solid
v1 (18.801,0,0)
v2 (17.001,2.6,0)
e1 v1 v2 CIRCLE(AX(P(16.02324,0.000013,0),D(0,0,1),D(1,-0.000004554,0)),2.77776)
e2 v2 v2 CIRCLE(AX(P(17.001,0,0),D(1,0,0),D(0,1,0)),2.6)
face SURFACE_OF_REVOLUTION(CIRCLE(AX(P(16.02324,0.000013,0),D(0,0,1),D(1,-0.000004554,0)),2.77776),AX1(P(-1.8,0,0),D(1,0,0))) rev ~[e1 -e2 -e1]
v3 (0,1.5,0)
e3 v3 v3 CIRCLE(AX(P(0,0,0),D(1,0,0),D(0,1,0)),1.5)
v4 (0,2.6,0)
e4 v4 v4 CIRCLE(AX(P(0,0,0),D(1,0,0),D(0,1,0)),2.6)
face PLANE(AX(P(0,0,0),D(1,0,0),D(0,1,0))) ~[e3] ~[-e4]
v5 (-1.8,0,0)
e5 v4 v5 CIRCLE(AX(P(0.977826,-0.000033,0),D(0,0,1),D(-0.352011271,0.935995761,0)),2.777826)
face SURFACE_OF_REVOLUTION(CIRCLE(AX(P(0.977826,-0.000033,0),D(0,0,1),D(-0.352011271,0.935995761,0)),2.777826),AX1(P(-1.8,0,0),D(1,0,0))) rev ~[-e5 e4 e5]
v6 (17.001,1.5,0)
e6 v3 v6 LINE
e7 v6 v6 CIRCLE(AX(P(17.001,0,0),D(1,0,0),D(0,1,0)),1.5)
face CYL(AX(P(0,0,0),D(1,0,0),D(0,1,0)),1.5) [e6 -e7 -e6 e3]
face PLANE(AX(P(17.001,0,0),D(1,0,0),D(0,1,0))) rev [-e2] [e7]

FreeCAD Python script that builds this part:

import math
import FreeCAD as App
import Part
import Sketcher
Q = App.Units.Quantity

doc = App.newDocument("Part")
params = doc.addObject("Spreadsheet::Sheet", "Params")
for row, (alias, value) in enumerate([
    ("sketch1_height", "1.1 mm"),
    ("revolution_angle", "360 deg"),
], start=1):
    params.set(f"A{row}", alias)
    params.set(f"B{row}", "=" + value)
    params.setAlias(f"B{row}", alias)

body = doc.addObject("PartDesign::Body", "Body")

# Sketch on XY plane
sketch1 = doc.addObject("Sketcher::SketchObject", "Sketch")
body.addObject(sketch1)
sketch1.AttachmentSupport = (doc.XY_Plane, [""])
sketch1.MapMode = "FlatFace"
sketch1.addGeometry([
    Part.LineSegment(App.Vector(17, 1.5, 0), App.Vector(0, 1.5, 0)),  # 0
    Part.LineSegment(App.Vector(0, 1.5, 0), App.Vector(0, 2.6, 0)),  # 1
    Part.ArcOfCircle(Part.Circle(App.Vector(1, 0, 0), App.Vector(0, 0, 1), 2.8), math.radians(111), math.radians(180)),  # 2
    Part.LineSegment(App.Vector(-1.8, 0, 0), App.Vector(18.8, 0, 0)),  # 3
    Part.ArcOfCircle(Part.Circle(App.Vector(16, 0, 0), App.Vector(0, 0, 1), 2.8), math.radians(0), math.radians(69)),  # 4
    Part.LineSegment(App.Vector(17, 2.6, 0), App.Vector(17, 1.5, 0)),  # 5
], False)
sketch1.addConstraint([
    Sketcher.Constraint("Coincident", 0, 2, 1, 1),
    Sketcher.Constraint("Coincident", 1, 2, 2, 1),
    Sketcher.Constraint("Coincident", 2, 2, 3, 1),
    Sketcher.Constraint("Coincident", 3, 2, 4, 1),
    Sketcher.Constraint("Coincident", 4, 2, 5, 1),
    Sketcher.Constraint("Coincident", 5, 2, 0, 1),
    Sketcher.Constraint("Horizontal", 0),
    Sketcher.Constraint("Vertical", 1),
    Sketcher.Constraint("Horizontal", 3),
    Sketcher.Constraint("Vertical", 5),
    Sketcher.Constraint("Equal", 2, 4),
    Sketcher.Constraint("PointOnObject", 2, 3, -1),
    Sketcher.Constraint("PointOnObject", 4, 3, -1),
    Sketcher.Constraint("PointOnObject", 0, 2, -2),
    Sketcher.Constraint("PointOnObject", 2, 2, -1),
    Sketcher.Constraint("Horizontal", 1, 2, 4, 2),
    Sketcher.Constraint("DistanceX", 2, 2, -1, 1, Q("1.8 mm")),
    Sketcher.Constraint("DistanceX", 0, 2, 0, 1, Q("17.001 mm")),
    Sketcher.Constraint("DistanceY", 1, 1, 1, 2, Q("1.1 mm")),
    Sketcher.Constraint("DistanceY", -1, 1, 0, 2, Q("1.5 mm")),
])
sketch1.setExpression("Constraints[18]", "Params.sketch1_height")
revolution = doc.addObject("PartDesign::Revolution", "Revolution")
body.addObject(revolution)
revolution.Profile = sketch1
revolution.ReferenceAxis = (sketch1, ["H_Axis"])
revolution.setExpression("Angle", "Params.revolution_angle")

doc.recompute()
